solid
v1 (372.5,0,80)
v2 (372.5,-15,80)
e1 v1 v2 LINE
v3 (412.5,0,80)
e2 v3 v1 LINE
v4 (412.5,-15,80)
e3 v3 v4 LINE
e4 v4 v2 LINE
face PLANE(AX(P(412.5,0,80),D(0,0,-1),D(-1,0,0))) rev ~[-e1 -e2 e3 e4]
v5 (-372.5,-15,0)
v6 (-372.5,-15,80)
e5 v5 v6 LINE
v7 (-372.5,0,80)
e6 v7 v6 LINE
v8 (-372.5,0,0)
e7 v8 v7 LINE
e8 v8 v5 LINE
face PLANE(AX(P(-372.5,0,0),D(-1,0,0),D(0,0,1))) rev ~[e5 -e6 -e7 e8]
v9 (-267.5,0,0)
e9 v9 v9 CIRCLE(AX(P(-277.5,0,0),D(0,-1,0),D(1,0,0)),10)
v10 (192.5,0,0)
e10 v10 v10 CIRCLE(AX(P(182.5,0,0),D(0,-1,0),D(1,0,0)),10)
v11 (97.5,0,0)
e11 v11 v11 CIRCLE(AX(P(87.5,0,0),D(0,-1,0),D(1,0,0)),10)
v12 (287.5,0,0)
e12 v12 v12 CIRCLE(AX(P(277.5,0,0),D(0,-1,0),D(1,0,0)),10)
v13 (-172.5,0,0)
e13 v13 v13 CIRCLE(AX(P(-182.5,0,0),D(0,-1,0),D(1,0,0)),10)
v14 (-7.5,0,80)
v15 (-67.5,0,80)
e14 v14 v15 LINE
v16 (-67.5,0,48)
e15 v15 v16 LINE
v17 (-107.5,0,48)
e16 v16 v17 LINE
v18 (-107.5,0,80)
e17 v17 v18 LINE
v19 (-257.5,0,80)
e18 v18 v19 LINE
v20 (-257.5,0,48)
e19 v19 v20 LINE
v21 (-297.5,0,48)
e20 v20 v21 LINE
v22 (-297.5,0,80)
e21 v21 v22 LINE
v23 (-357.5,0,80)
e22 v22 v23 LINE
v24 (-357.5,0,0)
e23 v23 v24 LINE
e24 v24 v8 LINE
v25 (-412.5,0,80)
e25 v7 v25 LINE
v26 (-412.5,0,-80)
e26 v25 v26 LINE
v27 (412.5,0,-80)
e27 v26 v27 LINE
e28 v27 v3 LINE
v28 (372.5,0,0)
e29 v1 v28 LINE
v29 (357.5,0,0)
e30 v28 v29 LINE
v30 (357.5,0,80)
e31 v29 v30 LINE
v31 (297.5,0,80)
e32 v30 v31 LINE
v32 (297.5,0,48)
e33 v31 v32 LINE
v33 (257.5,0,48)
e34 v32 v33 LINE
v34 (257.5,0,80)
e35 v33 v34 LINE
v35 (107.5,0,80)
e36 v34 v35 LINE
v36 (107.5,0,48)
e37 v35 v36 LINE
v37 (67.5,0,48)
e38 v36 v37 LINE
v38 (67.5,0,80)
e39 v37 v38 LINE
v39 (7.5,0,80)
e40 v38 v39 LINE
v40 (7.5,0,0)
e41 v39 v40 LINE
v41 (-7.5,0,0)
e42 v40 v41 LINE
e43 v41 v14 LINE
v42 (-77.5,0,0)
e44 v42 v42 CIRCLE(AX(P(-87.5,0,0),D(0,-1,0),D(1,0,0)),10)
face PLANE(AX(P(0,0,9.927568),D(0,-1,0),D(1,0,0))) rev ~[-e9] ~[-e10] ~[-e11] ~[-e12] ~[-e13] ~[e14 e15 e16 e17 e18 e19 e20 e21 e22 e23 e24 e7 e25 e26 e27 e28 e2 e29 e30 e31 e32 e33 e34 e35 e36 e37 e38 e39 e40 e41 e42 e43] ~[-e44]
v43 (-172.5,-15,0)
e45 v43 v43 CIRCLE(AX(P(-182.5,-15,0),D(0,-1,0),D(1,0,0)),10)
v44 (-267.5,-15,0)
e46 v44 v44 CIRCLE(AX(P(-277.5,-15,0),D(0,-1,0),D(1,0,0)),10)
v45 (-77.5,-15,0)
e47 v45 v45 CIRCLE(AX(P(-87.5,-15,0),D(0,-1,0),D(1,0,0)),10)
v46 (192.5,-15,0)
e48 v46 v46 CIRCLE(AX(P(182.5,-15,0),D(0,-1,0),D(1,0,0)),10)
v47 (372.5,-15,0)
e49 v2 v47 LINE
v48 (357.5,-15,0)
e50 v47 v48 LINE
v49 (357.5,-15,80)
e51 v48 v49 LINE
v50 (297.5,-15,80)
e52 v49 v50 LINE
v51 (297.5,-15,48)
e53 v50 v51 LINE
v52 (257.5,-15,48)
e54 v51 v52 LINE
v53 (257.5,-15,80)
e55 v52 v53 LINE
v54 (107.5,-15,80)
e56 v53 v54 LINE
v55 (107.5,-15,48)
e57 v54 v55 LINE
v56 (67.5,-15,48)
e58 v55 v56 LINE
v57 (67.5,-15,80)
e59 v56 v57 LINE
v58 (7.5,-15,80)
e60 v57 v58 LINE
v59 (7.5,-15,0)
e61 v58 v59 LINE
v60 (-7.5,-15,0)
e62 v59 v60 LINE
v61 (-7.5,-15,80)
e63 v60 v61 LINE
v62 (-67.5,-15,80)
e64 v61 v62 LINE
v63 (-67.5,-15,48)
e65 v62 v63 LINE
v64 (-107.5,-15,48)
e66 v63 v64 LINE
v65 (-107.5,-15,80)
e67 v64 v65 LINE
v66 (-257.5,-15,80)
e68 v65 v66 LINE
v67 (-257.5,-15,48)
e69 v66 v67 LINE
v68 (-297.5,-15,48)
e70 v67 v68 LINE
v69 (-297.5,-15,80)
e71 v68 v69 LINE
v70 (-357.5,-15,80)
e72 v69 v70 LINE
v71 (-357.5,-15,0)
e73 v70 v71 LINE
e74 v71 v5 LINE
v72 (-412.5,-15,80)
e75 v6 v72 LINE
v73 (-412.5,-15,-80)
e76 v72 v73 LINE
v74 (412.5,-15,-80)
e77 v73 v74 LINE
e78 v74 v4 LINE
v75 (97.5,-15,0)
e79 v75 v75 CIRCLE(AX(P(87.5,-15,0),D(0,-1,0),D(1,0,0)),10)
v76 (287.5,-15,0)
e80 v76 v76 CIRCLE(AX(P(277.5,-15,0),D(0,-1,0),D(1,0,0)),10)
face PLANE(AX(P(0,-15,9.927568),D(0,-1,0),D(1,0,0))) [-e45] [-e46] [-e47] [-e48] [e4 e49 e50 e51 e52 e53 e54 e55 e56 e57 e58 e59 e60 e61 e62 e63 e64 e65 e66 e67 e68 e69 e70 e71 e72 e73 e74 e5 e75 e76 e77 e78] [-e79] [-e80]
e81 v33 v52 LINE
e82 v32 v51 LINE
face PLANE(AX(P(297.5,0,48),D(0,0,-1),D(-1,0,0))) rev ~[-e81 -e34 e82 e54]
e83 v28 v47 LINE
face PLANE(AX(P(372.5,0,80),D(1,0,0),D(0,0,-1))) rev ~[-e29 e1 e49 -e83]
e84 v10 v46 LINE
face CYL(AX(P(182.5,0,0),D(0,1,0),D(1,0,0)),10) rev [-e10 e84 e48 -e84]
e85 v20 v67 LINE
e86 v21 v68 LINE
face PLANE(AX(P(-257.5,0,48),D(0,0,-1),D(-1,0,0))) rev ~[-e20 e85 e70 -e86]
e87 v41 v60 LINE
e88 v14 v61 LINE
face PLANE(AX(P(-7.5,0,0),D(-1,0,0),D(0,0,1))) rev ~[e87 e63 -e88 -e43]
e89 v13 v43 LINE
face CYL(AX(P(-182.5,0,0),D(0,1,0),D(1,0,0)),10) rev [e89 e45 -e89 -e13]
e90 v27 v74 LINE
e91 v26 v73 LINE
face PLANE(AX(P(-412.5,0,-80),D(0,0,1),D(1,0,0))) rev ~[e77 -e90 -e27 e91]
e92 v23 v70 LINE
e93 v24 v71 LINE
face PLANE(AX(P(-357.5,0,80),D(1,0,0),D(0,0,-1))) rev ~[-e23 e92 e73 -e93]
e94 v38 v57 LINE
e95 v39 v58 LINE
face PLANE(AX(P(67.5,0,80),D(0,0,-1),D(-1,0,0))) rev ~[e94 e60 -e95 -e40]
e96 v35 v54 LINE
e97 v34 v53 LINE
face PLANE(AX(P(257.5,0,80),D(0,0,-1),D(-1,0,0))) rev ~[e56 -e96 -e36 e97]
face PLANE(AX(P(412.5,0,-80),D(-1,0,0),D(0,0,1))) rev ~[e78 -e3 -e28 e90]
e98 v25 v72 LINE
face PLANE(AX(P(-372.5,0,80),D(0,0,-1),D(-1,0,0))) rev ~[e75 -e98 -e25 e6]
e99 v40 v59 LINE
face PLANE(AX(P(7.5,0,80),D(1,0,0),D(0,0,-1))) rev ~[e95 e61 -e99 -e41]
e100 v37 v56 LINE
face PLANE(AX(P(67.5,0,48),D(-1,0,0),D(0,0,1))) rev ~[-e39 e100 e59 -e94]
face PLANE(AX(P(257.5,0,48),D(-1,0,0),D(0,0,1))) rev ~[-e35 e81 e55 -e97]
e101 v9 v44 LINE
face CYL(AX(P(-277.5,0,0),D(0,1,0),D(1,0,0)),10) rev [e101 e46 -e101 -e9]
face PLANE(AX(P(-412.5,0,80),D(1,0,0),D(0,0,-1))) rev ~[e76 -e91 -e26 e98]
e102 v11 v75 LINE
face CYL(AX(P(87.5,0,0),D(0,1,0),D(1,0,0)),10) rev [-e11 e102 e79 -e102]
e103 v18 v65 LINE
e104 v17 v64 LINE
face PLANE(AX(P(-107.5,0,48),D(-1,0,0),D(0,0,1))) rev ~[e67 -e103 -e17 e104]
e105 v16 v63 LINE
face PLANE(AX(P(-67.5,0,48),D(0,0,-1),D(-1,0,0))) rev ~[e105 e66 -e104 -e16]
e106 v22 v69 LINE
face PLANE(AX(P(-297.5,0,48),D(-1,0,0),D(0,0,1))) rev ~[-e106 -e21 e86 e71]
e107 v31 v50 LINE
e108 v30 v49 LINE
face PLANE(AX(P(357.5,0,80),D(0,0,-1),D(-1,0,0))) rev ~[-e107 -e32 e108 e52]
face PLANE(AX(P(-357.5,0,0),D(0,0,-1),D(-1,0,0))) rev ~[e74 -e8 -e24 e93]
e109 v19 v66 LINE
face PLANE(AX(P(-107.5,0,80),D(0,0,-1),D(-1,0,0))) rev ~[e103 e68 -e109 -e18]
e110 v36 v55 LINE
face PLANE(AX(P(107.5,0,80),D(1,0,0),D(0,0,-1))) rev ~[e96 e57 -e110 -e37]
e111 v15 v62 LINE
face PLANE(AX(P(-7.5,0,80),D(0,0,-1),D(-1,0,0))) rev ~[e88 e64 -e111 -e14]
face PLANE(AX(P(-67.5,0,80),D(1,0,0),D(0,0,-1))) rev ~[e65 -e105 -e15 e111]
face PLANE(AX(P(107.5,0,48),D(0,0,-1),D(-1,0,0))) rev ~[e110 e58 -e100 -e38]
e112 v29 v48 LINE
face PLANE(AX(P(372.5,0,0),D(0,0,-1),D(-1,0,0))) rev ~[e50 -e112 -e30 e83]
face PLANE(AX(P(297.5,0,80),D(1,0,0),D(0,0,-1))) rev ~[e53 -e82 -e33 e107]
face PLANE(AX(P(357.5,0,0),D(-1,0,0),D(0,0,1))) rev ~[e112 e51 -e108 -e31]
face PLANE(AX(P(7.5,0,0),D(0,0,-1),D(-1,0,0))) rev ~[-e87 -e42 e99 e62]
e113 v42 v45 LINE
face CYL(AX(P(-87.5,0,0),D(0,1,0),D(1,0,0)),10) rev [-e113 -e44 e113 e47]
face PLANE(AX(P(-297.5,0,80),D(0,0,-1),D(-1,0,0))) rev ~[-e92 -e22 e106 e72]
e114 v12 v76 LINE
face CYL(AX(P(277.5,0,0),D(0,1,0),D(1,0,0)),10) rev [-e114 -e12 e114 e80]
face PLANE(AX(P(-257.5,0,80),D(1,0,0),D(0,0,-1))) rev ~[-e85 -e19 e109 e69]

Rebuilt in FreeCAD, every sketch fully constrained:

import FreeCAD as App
import Part
import Sketcher
Q = App.Units.Quantity

doc = App.newDocument("Part")
body = doc.addObject("PartDesign::Body", "Body")

# Sketch on XZ plane
sketch1 = doc.addObject("Sketcher::SketchObject", "Sketch")
body.addObject(sketch1)
sketch1.AttachmentSupport = (doc.XZ_Plane, [""])
sketch1.MapMode = "FlatFace"
sketch1.addGeometry(Part.LineSegment(App.Vector(-372, 80, 0), App.Vector(-412, 80, 0)), False)
sketch1.addGeometry(Part.LineSegment(App.Vector(-412, 80, 0), App.Vector(-412, -80, 0)), False)
sketch1.addGeometry(Part.LineSegment(App.Vector(-412, -80, 0), App.Vector(412, -80, 0)), False)
sketch1.addGeometry(Part.LineSegment(App.Vector(412, -80, 0), App.Vector(412, 80, 0)), False)
sketch1.addGeometry(Part.LineSegment(App.Vector(412, 80, 0), App.Vector(372, 80, 0)), False)
sketch1.addGeometry(Part.LineSegment(App.Vector(372, 80, 0), App.Vector(372, 0, 0)), False)
sketch1.addGeometry(Part.LineSegment(App.Vector(372, 0, 0), App.Vector(358, 0, 0)), False)
sketch1.addGeometry(Part.LineSegment(App.Vector(358, 0, 0), App.Vector(358, 80, 0)), False)
sketch1.addGeometry(Part.LineSegment(App.Vector(358, 80, 0), App.Vector(298, 80, 0)), False)
sketch1.addGeometry(Part.LineSegment(App.Vector(298, 80, 0), App.Vector(298, 48, 0)), False)
sketch1.addGeometry(Part.LineSegment(App.Vector(298, 48, 0), App.Vector(258, 48, 0)), False)
sketch1.addGeometry(Part.LineSegment(App.Vector(258, 48, 0), App.Vector(258, 80, 0)), False)
sketch1.addGeometry(Part.LineSegment(App.Vector(258, 80, 0), App.Vector(108, 80, 0)), False)
sketch1.addGeometry(Part.LineSegment(App.Vector(108, 80, 0), App.Vector(108, 48, 0)), False)
sketch1.addGeometry(Part.LineSegment(App.Vector(108, 48, 0), App.Vector(68, 48, 0)), False)
sketch1.addGeometry(Part.LineSegment(App.Vector(68, 48, 0), App.Vector(68, 80, 0)), False)
sketch1.addGeometry(Part.LineSegment(App.Vector(68, 80, 0), App.Vector(8, 80, 0)), False)
sketch1.addGeometry(Part.LineSegment(App.Vector(8, 80, 0), App.Vector(8, 0, 0)), False)
sketch1.addGeometry(Part.LineSegment(App.Vector(8, 0, 0), App.Vector(-8, 0, 0)), False)
sketch1.addGeometry(Part.LineSegment(App.Vector(-8, 0, 0), App.Vector(-8, 80, 0)), False)
sketch1.addGeometry(Part.LineSegment(App.Vector(-8, 80, 0), App.Vector(-68, 80, 0)), False)
sketch1.addGeometry(Part.LineSegment(App.Vector(-68, 80, 0), App.Vector(-68, 48, 0)), False)
sketch1.addGeometry(Part.LineSegment(App.Vector(-68, 48, 0), App.Vector(-108, 48, 0)), False)
sketch1.addGeometry(Part.LineSegment(App.Vector(-108, 48, 0), App.Vector(-108, 80, 0)), False)
sketch1.addGeometry(Part.LineSegment(App.Vector(-108, 80, 0), App.Vector(-258, 80, 0)), False)
sketch1.addGeometry(Part.LineSegment(App.Vector(-258, 80, 0), App.Vector(-258, 48, 0)), False)
sketch1.addGeometry(Part.LineSegment(App.Vector(-258, 48, 0), App.Vector(-298, 48, 0)), False)
sketch1.addGeometry(Part.LineSegment(App.Vector(-298, 48, 0), App.Vector(-298, 80, 0)), False)
sketch1.addGeometry(Part.LineSegment(App.Vector(-298, 80, 0), App.Vector(-358, 80, 0)), False)
sketch1.addGeometry(Part.LineSegment(App.Vector(-358, 80, 0), App.Vector(-358, 0, 0)), False)
sketch1.addGeometry(Part.LineSegment(App.Vector(-358, 0, 0), App.Vector(-372, 0, 0)), False)
sketch1.addGeometry(Part.LineSegment(App.Vector(-372, 0, 0), App.Vector(-372, 80, 0)), False)
sketch1.addGeometry(Part.Circle(App.Vector(-278, 0, 0), App.Vector(0, 0, 1), 10), False)
sketch1.addGeometry(Part.Circle(App.Vector(-182, 0, 0), App.Vector(0, 0, 1), 10), False)
sketch1.addGeometry(Part.Circle(App.Vector(-88, 0, 0), App.Vector(0, 0, 1), 10), False)
sketch1.addGeometry(Part.Circle(App.Vector(88, 0, 0), App.Vector(0, 0, 1), 10), False)
sketch1.addGeometry(Part.Circle(App.Vector(182, 0, 0), App.Vector(0, 0, 1), 10), False)
sketch1.addGeometry(Part.Circle(App.Vector(278, 0, 0), App.Vector(0, 0, 1), 10), False)
sketch1.addConstraint(Sketcher.Constraint("Coincident", 0, 2, 1, 1))
sketch1.addConstraint(Sketcher.Constraint("Coincident", 1, 2, 2, 1))
sketch1.addConstraint(Sketcher.Constraint("Coincident", 2, 2, 3, 1))
sketch1.addConstraint(Sketcher.Constraint("Coincident", 3, 2, 4, 1))
sketch1.addConstraint(Sketcher.Constraint("Coincident", 4, 2, 5, 1))
sketch1.addConstraint(Sketcher.Constraint("Coincident", 5, 2, 6, 1))
sketch1.addConstraint(Sketcher.Constraint("Coincident", 6, 2, 7, 1))
sketch1.addConstraint(Sketcher.Constraint("Coincident", 7, 2, 8, 1))
sketch1.addConstraint(Sketcher.Constraint("Coincident", 8, 2, 9, 1))
sketch1.addConstraint(Sketcher.Constraint("Coincident", 9, 2, 10, 1))
sketch1.addConstraint(Sketcher.Constraint("Coincident", 10, 2, 11, 1))
sketch1.addConstraint(Sketcher.Constraint("Coincident", 11, 2, 12, 1))
sketch1.addConstraint(Sketcher.Constraint("Coincident", 12, 2, 13, 1))
sketch1.addConstraint(Sketcher.Constraint("Coincident", 13, 2, 14, 1))
sketch1.addConstraint(Sketcher.Constraint("Coincident", 14, 2, 15, 1))
sketch1.addConstraint(Sketcher.Constraint("Coincident", 15, 2, 16, 1))
sketch1.addConstraint(Sketcher.Constraint("Coincident", 16, 2, 17, 1))
sketch1.addConstraint(Sketcher.Constraint("Coincident", 17, 2, 18, 1))
sketch1.addConstraint(Sketcher.Constraint("Coincident", 18, 2, 19, 1))
sketch1.addConstraint(Sketcher.Constraint("Coincident", 19, 2, 20, 1))
sketch1.addConstraint(Sketcher.Constraint("Coincident", 20, 2, 21, 1))
sketch1.addConstraint(Sketcher.Constraint("Coincident", 21, 2, 22, 1))
sketch1.addConstraint(Sketcher.Constraint("Coincident", 22, 2, 23, 1))
sketch1.addConstraint(Sketcher.Constraint("Coincident", 23, 2, 24, 1))
sketch1.addConstraint(Sketcher.Constraint("Coincident", 24, 2, 25, 1))
sketch1.addConstraint(Sketcher.Constraint("Coincident", 25, 2, 26, 1))
sketch1.addConstraint(Sketcher.Constraint("Coincident", 26, 2, 27, 1))
sketch1.addConstraint(Sketcher.Constraint("Coincident", 27, 2, 28, 1))
sketch1.addConstraint(Sketcher.Constraint("Coincident", 28, 2, 29, 1))
sketch1.addConstraint(Sketcher.Constraint("Coincident", 29, 2, 30, 1))
sketch1.addConstraint(Sketcher.Constraint("Coincident", 30, 2, 31, 1))
sketch1.addConstraint(Sketcher.Constraint("Coincident", 31, 2, 0, 1))
sketch1.addConstraint(Sketcher.Constraint("Horizontal", 0))
sketch1.addConstraint(Sketcher.Constraint("Vertical", 1))
sketch1.addConstraint(Sketcher.Constraint("Horizontal", 2))
sketch1.addConstraint(Sketcher.Constraint("Vertical", 3))
sketch1.addConstraint(Sketcher.Constraint("Horizontal", 4))
sketch1.addConstraint(Sketcher.Constraint("Vertical", 5))
sketch1.addConstraint(Sketcher.Constraint("Horizontal", 6))
sketch1.addConstraint(Sketcher.Constraint("Vertical", 7))
sketch1.addConstraint(Sketcher.Constraint("Horizontal", 8))
sketch1.addConstraint(Sketcher.Constraint("Vertical", 9))
sketch1.addConstraint(Sketcher.Constraint("Horizontal", 10))
sketch1.addConstraint(Sketcher.Constraint("Vertical", 11))
sketch1.addConstraint(Sketcher.Constraint("Horizontal", 12))
sketch1.addConstraint(Sketcher.Constraint("Vertical", 13))
sketch1.addConstraint(Sketcher.Constraint("Horizontal", 14))
sketch1.addConstraint(Sketcher.Constraint("Vertical", 15))
sketch1.addConstraint(Sketcher.Constraint("Horizontal", 16))
sketch1.addConstraint(Sketcher.Constraint("Vertical", 17))
sketch1.addConstraint(Sketcher.Constraint("Horizontal", 18))
sketch1.addConstraint(Sketcher.Constraint("Vertical", 19))
sketch1.addConstraint(Sketcher.Constraint("Horizontal", 20))
sketch1.addConstraint(Sketcher.Constraint("Vertical", 21))
sketch1.addConstraint(Sketcher.Constraint("Horizontal", 22))
sketch1.addConstraint(Sketcher.Constraint("Vertical", 23))
sketch1.addConstraint(Sketcher.Constraint("Horizontal", 24))
sketch1.addConstraint(Sketcher.Constraint("Vertical", 25))
sketch1.addConstraint(Sketcher.Constraint("Horizontal", 26))
sketch1.addConstraint(Sketcher.Constraint("Vertical", 27))
sketch1.addConstraint(Sketcher.Constraint("Horizontal", 28))
sketch1.addConstraint(Sketcher.Constraint("Vertical", 29))
sketch1.addConstraint(Sketcher.Constraint("Horizontal", 30))
sketch1.addConstraint(Sketcher.Constraint("Vertical", 31))
sketch1.addConstraint(Sketcher.Constraint("Equal", 32, 33))
sketch1.addConstraint(Sketcher.Constraint("Equal", 33, 34))
sketch1.addConstraint(Sketcher.Constraint("Equal", 34, 35))
sketch1.addConstraint(Sketcher.Constraint("Equal", 35, 36))
sketch1.addConstraint(Sketcher.Constraint("Equal", 36, 37))
sketch1.addConstraint(Sketcher.Constraint("Symmetric", 34, 3, 35, 3, -1, 1))
sketch1.addConstraint(Sketcher.Constraint("Symmetric", 33, 3, 36, 3, -1, 1))
sketch1.addConstraint(Sketcher.Constraint("Symmetric", 32, 3, 37, 3, -1, 1))
sketch1.addConstraint(Sketcher.Constraint("Symmetric", 0, 2, 2, 2, -1, 1))
sketch1.addConstraint(Sketcher.Constraint("Symmetric", 17, 2, 18, 2, -1, 1))
sketch1.addConstraint(Sketcher.Constraint("Symmetric", 6, 2, 29, 2, -1, 1))
sketch1.addConstraint(Sketcher.Constraint("Symmetric", 15, 2, 20, 2, -2))
sketch1.addConstraint(Sketcher.Constraint("Symmetric", 13, 2, 22, 2, -2))
sketch1.addConstraint(Sketcher.Constraint("Symmetric", 11, 2, 24, 2, -2))
sketch1.addConstraint(Sketcher.Constraint("Symmetric", 9, 2, 26, 2, -2))
sketch1.addConstraint(Sketcher.Constraint("Symmetric", 5, 2, 30, 2, -2))
sketch1.addConstraint(Sketcher.Constraint("PointOnObject", 32, 3, -1))
sketch1.addConstraint(Sketcher.Constraint("PointOnObject", 33, 3, -1))
sketch1.addConstraint(Sketcher.Constraint("PointOnObject", 34, 3, -1))
sketch1.addConstraint(Sketcher.Constraint("Horizontal", 0, 2, 3, 2))
sketch1.addConstraint(Sketcher.Constraint("Horizontal", 4, 2, 7, 2))
sketch1.addConstraint(Sketcher.Constraint("Horizontal", 8, 2, 11, 2))
sketch1.addConstraint(Sketcher.Constraint("Horizontal", 10, 2, 13, 2))
sketch1.addConstraint(Sketcher.Constraint("Horizontal", 12, 2, 15, 2))
sketch1.addConstraint(Sketcher.Constraint("Horizontal", 24, 2, 27, 2))
sketch1.addConstraint(Sketcher.Constraint("Equal", 4, 10))
sketch1.addConstraint(Sketcher.Constraint("Equal", 10, 14))
sketch1.addConstraint(Sketcher.Constraint("Equal", 8, 16))
sketch1.addConstraint(Sketcher.Constraint("Equal", 6, 18))
sketch1.addConstraint(Sketcher.Constraint("Diameter", 32, Q("20 mm")))
sketch1.addConstraint(Sketcher.Constraint("DistanceX", 0, 2, 0, 1, Q("40 mm")))
sketch1.addConstraint(Sketcher.Constraint("DistanceX", 2, 1, 2, 2, Q("825 mm")))
sketch1.addConstraint(Sketcher.Constraint("DistanceX", 6, 2, 6, 1, Q("15 mm")))
sketch1.addConstraint(Sketcher.Constraint("DistanceX", 8, 2, 8, 1, Q("60 mm")))
sketch1.addConstraint(Sketcher.Constraint("DistanceY", 1, 2, 1, 1, Q("160 mm")))
sketch1.addConstraint(Sketcher.Constraint("DistanceY", 9, 2, 9, 1, Q("32 mm")))
sketch1.addConstraint(Sketcher.Constraint("DistanceX", 32, 3, 33, 3, Q("95 mm")))
sketch1.addConstraint(Sketcher.Constraint("DistanceX", 33, 3, 34, 3, Q("95 mm")))
sketch1.addConstraint(Sketcher.Constraint("DistanceX", 34, 3, 35, 3, Q("175 mm")))
pad1 = doc.addObject("PartDesign::Pad", "Pad")
body.addObject(pad1)
pad1.Profile = sketch1
pad1.Length = 15

doc.recompute()
